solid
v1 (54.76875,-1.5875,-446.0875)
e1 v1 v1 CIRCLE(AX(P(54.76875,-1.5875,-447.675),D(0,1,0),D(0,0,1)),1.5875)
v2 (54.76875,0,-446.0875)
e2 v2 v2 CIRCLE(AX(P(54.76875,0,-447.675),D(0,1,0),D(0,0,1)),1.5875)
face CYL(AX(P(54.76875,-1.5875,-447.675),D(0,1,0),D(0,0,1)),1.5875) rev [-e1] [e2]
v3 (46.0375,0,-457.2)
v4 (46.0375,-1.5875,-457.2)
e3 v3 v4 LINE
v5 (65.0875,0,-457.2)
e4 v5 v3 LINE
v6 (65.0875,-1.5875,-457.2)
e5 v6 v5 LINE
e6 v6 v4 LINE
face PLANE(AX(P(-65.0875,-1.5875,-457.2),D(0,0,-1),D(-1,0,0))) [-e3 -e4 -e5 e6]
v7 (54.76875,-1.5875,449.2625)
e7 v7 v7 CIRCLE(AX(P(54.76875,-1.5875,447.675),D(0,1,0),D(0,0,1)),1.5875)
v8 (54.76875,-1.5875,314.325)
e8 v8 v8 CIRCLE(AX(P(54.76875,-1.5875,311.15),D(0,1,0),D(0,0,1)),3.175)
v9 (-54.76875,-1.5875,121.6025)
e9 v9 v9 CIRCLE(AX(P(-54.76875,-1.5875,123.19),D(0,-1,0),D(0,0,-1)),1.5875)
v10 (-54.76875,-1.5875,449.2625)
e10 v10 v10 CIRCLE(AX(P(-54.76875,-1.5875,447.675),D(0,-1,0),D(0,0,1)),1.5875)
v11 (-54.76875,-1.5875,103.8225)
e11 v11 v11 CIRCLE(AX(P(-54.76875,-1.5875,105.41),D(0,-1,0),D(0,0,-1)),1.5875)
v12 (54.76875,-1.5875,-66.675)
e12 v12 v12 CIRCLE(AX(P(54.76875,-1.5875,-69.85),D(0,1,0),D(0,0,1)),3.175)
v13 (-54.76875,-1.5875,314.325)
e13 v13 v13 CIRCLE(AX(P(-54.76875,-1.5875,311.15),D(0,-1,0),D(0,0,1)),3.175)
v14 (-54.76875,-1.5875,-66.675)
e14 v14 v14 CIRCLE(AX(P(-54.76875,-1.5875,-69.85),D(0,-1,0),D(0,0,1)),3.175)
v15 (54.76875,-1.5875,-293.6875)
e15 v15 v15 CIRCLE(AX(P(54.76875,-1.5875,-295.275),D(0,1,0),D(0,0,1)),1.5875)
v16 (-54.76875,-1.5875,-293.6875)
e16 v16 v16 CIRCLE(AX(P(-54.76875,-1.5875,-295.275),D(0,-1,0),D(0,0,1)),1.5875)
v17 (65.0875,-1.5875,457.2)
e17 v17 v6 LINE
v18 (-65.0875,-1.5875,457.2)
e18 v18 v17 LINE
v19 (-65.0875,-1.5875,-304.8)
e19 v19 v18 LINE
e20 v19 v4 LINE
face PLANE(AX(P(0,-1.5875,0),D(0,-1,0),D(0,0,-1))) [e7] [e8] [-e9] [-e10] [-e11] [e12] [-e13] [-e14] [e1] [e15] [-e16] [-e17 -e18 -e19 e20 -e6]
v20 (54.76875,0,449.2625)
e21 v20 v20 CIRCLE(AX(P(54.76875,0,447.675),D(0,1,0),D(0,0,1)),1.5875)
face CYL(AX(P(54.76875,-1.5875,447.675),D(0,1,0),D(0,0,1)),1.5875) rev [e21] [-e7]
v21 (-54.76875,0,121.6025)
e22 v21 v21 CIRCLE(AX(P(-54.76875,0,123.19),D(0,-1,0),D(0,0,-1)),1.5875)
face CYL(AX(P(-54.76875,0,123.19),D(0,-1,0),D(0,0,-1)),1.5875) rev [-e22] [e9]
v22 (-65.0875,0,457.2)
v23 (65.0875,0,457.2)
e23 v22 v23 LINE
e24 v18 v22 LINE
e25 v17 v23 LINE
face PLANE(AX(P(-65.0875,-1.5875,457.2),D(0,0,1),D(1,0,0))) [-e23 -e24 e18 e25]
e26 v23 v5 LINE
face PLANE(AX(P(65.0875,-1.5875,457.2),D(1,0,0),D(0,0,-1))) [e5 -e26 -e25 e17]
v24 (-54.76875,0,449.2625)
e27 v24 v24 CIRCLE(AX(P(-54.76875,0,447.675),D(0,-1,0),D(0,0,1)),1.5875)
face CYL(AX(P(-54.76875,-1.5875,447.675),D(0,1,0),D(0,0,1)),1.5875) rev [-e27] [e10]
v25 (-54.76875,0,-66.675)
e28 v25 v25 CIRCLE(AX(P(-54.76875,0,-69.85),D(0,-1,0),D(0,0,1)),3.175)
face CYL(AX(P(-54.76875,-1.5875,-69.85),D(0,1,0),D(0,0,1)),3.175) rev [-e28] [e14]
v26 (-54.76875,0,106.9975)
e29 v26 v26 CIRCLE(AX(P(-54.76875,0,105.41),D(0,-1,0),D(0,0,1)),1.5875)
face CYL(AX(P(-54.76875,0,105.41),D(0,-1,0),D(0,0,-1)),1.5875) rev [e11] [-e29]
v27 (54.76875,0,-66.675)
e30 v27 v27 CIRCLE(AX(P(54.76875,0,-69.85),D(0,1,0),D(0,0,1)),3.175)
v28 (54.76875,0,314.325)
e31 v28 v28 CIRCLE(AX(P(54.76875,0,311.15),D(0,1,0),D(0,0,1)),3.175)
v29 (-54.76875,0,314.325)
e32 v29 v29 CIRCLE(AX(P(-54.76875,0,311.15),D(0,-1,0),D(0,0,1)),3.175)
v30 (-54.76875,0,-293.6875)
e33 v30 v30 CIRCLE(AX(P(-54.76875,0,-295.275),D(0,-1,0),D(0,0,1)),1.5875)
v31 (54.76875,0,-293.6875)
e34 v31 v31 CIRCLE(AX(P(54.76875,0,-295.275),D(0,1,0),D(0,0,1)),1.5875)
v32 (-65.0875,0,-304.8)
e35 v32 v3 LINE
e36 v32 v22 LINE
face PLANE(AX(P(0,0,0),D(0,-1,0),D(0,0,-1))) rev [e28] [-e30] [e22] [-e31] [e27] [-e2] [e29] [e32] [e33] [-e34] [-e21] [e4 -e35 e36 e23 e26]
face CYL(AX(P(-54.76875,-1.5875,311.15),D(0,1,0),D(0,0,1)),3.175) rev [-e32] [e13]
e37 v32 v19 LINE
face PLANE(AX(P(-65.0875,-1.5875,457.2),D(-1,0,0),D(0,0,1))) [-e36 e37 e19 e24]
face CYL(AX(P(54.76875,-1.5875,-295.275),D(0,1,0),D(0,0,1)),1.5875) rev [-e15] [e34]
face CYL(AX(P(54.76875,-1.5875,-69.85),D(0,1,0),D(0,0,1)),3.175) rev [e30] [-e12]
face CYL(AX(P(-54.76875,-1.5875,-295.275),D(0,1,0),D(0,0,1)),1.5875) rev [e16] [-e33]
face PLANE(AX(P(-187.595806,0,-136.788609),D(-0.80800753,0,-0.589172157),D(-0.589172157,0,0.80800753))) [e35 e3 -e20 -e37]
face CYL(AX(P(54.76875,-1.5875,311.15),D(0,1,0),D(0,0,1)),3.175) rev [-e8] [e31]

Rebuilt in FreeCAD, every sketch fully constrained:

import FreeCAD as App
import Part
import Sketcher

V = App.Vector
Q = App.Units.Quantity

doc = App.newDocument("Part")
body = doc.addObject("PartDesign::Body", "Body")

# Sketch on XZ plane
sketch1 = doc.addObject("Sketcher::SketchObject", "Sketch")
body.addObject(sketch1)
sketch1.AttachmentSupport = (doc.XZ_Plane, [""])
sketch1.MapMode = "FlatFace"
sketch1.addGeometry(Part.LineSegment(V(-65, -457, 0), V(-65, 457, 0)), False)
sketch1.addGeometry(Part.LineSegment(V(-65, 457, 0), V(65, 457, 0)), False)
sketch1.addGeometry(Part.LineSegment(V(65, 457, 0), V(65, -457, 0)), False)
sketch1.addGeometry(Part.LineSegment(V(65, -457, 0), V(-65, -457, 0)), False)
sketch1.addConstraint(Sketcher.Constraint("Coincident", 0, 2, 1, 1))
sketch1.addConstraint(Sketcher.Constraint("Coincident", 1, 2, 2, 1))
sketch1.addConstraint(Sketcher.Constraint("Coincident", 2, 2, 3, 1))
sketch1.addConstraint(Sketcher.Constraint("Coincident", 3, 2, 0, 1))
sketch1.addConstraint(Sketcher.Constraint("Vertical", 0))
sketch1.addConstraint(Sketcher.Constraint("Horizontal", 1))
sketch1.addConstraint(Sketcher.Constraint("Vertical", 2))
sketch1.addConstraint(Sketcher.Constraint("Horizontal", 3))
sketch1.addConstraint(Sketcher.Constraint("Symmetric", 0, 2, 2, 2, -1, 1))
sketch1.addConstraint(Sketcher.Constraint("DistanceY", 0, 1, 0, 2, Q("36 in")))
sketch1.addConstraint(Sketcher.Constraint("DistanceX", 1, 1, 1, 2, Q("5.125 in")))
pad1 = doc.addObject("PartDesign::Pad", "Pad")
body.addObject(pad1)
pad1.Profile = sketch1
pad1.Length = Q("0.0625 in")

# Sketch on XZ plane
sketch2 = doc.addObject("Sketcher::SketchObject", "Sketch001")
body.addObject(sketch2)
sketch2.AttachmentSupport = (doc.XZ_Plane, [""])
sketch2.MapMode = "FlatFace"
sketch2.addGeometry(Part.Circle(V(54.8, 447.7, 0), V(0, 0, 1), 1.6), False)
sketch2.addGeometry(Part.Circle(V(54.8, 311.1, 0), V(0, 0, 1), 3.2), False)
sketch2.addGeometry(Part.Circle(V(54.8, -447.7, 0), V(0, 0, 1), 1.6), False)
sketch2.addGeometry(Part.Circle(V(54.8, -69.8, 0), V(0, 0, 1), 3.2), False)
sketch2.addGeometry(Part.Circle(V(54.8, -295.3, 0), V(0, 0, 1), 1.6), False)
sketch2.addConstraint(Sketcher.Constraint("Equal", 0, 2))
sketch2.addConstraint(Sketcher.Constraint("Equal", 1, 3))
sketch2.addConstraint(Sketcher.Constraint("Equal", 2, 4))
sketch2.addConstraint(Sketcher.Constraint("Symmetric", 0, 3, 2, 3, -1))
sketch2.addConstraint(Sketcher.Constraint("Vertical", 0, 3, 1, 3))
sketch2.addConstraint(Sketcher.Constraint("Vertical", 2, 3, 3, 3))
sketch2.addConstraint(Sketcher.Constraint("Vertical", 3, 3, 4, 3))
sketch2.addConstraint(Sketcher.Constraint("Diameter", 1, Q("0.25 in")))
sketch2.addConstraint(Sketcher.Constraint("Diameter", 0, Q("0.125 in")))
sketch2.addConstraint(Sketcher.Constraint("DistanceY", 3, 3, 1, 3, Q("15 in")))
sketch2.addConstraint(Sketcher.Constraint("DistanceY", 2, 3, 4, 3, Q("6 in")))
sketch2.addConstraint(Sketcher.Constraint("DistanceY", -1, 1, 1, 3, Q("12.25 in")))
sketch2.addConstraint(Sketcher.Constraint("DistanceY", 2, 3, 0, 3, Q("35.25 in")))
sketch2.addConstraint(Sketcher.Constraint("DistanceX", -1, 1, 0, 3, Q("2.15625 in")))
pocket1 = doc.addObject("PartDesign::Pocket", "Pocket")
body.addObject(pocket1)
pocket1.Profile = sketch2
pocket1.Type = "ThroughAll"
pocket1.Reversed = True
doc.recompute()

mirrored = doc.addObject("PartDesign::Mirrored", "Mirrored")
body.addObject(mirrored)
mirrored.Originals = [pocket1]
mirrored.MirrorPlane = (doc.YZ_Plane, [""])
body.Tip = mirrored

# Sketch on XZ plane
sketch3 = doc.addObject("Sketcher::SketchObject", "Sketch002")
body.addObject(sketch3)
sketch3.AttachmentSupport = (doc.XZ_Plane, [""])
sketch3.MapMode = "FlatFace"
sketch3.AttachmentOffset = App.Placement(V(0, 0, 0.0625 * 25.4), App.Rotation())
sketch3.addGeometry(Part.LineSegment(V(-65.1, -457.2, 0), V(46, -457.2, 0)), False)
sketch3.addGeometry(Part.LineSegment(V(46, -457.2, 0), V(-65.1, -304.8, 0)), False)
sketch3.addGeometry(Part.LineSegment(V(-65.1, -304.8, 0), V(-65.1, -457.2, 0)), False)
sketch3.addGeometry(Part.Circle(V(-54.8, -447.7, 0), V(0, 0, 1), 1.6), False)
sketch3.addConstraint(Sketcher.Constraint("Coincident", 0, 2, 1, 1))
sketch3.addConstraint(Sketcher.Constraint("Coincident", 1, 2, 2, 1))
sketch3.addConstraint(Sketcher.Constraint("Coincident", 2, 2, 0, 1))
sketch3.addConstraint(Sketcher.Constraint("Horizontal", 0))
sketch3.addConstraint(Sketcher.Constraint("Vertical", 2))
sketch3.addConstraint(Sketcher.Constraint("DistanceY", 2, 2, 2, 1, Q("6 in")))
sketch3.addConstraint(Sketcher.Constraint("Diameter", 3, Q("0.125 in")))
sketch3.addConstraint(Sketcher.Constraint("DistanceY", 0, 2, -1, 1, Q("18 in")))
sketch3.addConstraint(Sketcher.Constraint("DistanceX", 0, 1, 0, 2, Q("4.375 in")))
sketch3.addConstraint(Sketcher.Constraint("DistanceX", 3, 3, -1, 1, Q("2.15625 in")))
sketch3.addConstraint(Sketcher.Constraint("DistanceY", 3, 3, -1, 1, Q("17.625 in")))
sketch3.addConstraint(Sketcher.Constraint("DistanceX", -1, 1, 0, 2, Q("1.8125 in")))
pocket2 = doc.addObject("PartDesign::Pocket", "Pocket001")
body.addObject(pocket2)
pocket2.Profile = sketch3
pocket2.Type = "ThroughAll"

# Sketch on XZ plane
sketch4 = doc.addObject("Sketcher::SketchObject", "Sketch003")
body.addObject(sketch4)
sketch4.AttachmentSupport = (doc.XZ_Plane, [""])
sketch4.MapMode = "FlatFace"
sketch4.AttachmentOffset = App.Placement(V(0, 0, 0.0625 * 25.4), App.Rotation())
sketch4.addGeometry(Part.Circle(V(-54.8, 123.2, 0), V(0, 0, 1), 1.6), False)
sketch4.addGeometry(Part.Circle(V(-54.8, 105.4, 0), V(0, 0, 1), 1.6), False)
sketch4.addConstraint(Sketcher.Constraint("Equal", 0, 1))
sketch4.addConstraint(Sketcher.Constraint("Vertical", 0, 3, 1, 3))
sketch4.addConstraint(Sketcher.Constraint("Diameter", 0, Q("0.125 in")))
sketch4.addConstraint(Sketcher.Constraint("DistanceY", 1, 3, 0, 3, Q("0.7 in")))
sketch4.addConstraint(Sketcher.Constraint("DistanceY", -1, 1, 0, 3, Q("4.85 in")))
sketch4.addConstraint(Sketcher.Constraint("DistanceX", 0, 3, -1, 1, Q("2.15625 in")))
pocket3 = doc.addObject("PartDesign::Pocket", "Pocket002")
body.addObject(pocket3)
pocket3.Profile = sketch4
pocket3.Type = "ThroughAll"
pocket3.Midplane = True

doc.recompute()
